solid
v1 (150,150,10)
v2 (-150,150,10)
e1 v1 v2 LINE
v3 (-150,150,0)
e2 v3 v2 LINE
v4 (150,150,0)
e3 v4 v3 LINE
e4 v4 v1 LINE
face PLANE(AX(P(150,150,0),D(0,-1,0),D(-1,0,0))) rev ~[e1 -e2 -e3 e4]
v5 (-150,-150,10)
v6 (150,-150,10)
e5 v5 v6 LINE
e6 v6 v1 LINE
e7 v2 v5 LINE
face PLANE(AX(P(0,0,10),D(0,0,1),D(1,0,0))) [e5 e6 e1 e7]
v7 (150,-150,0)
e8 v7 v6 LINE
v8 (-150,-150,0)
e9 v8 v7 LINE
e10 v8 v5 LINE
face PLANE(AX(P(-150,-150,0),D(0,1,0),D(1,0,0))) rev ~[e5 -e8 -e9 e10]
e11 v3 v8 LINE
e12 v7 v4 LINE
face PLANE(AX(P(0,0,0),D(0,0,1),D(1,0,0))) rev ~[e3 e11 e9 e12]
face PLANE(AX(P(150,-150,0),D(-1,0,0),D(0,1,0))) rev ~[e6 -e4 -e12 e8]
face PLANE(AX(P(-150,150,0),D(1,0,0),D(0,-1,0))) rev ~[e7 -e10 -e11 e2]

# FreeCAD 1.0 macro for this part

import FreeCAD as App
import Part
import Sketcher

doc = App.newDocument("Part")
body = doc.addObject("PartDesign::Body", "Body")

sketch1 = body.newObject("Sketcher::SketchObject", "Sketch")
sketch1.AttachmentSupport = (doc.getObject("XY_Plane"), [""])
sketch1.MapMode = "FlatFace"
sketch1.addGeometry(Part.LineSegment(App.Vector(-150, 150, 0), App.Vector(-150, -150, 0)), False)
sketch1.addGeometry(Part.LineSegment(App.Vector(-150, -150, 0), App.Vector(150, -150, 0)), False)
sketch1.addGeometry(Part.LineSegment(App.Vector(150, -150, 0), App.Vector(150, 150, 0)), False)
sketch1.addGeometry(Part.LineSegment(App.Vector(150, 150, 0), App.Vector(-150, 150, 0)), False)
sketch1.addConstraint(Sketcher.Constraint("Coincident", 0, 2, 1, 1))
sketch1.addConstraint(Sketcher.Constraint("Coincident", 1, 2, 2, 1))
sketch1.addConstraint(Sketcher.Constraint("Coincident", 2, 2, 3, 1))
sketch1.addConstraint(Sketcher.Constraint("Coincident", 3, 2, 0, 1))
sketch1.addConstraint(Sketcher.Constraint("Vertical", 0))
sketch1.addConstraint(Sketcher.Constraint("Horizontal", 1))
sketch1.addConstraint(Sketcher.Constraint("Vertical", 2))
sketch1.addConstraint(Sketcher.Constraint("Horizontal", 3))
sketch1.addConstraint(Sketcher.Constraint("Symmetric", 0, 2, 2, 2, -1, 1))
sketch1.addConstraint(Sketcher.Constraint("Equal", 3, 0))
sketch1.addConstraint(Sketcher.Constraint("DistanceX", 1, 1, 1, 2, 300.0))
pad1 = body.newObject("PartDesign::Pad", "Pad")
pad1.Profile = sketch1
pad1.Length = 10

doc.recompute()
